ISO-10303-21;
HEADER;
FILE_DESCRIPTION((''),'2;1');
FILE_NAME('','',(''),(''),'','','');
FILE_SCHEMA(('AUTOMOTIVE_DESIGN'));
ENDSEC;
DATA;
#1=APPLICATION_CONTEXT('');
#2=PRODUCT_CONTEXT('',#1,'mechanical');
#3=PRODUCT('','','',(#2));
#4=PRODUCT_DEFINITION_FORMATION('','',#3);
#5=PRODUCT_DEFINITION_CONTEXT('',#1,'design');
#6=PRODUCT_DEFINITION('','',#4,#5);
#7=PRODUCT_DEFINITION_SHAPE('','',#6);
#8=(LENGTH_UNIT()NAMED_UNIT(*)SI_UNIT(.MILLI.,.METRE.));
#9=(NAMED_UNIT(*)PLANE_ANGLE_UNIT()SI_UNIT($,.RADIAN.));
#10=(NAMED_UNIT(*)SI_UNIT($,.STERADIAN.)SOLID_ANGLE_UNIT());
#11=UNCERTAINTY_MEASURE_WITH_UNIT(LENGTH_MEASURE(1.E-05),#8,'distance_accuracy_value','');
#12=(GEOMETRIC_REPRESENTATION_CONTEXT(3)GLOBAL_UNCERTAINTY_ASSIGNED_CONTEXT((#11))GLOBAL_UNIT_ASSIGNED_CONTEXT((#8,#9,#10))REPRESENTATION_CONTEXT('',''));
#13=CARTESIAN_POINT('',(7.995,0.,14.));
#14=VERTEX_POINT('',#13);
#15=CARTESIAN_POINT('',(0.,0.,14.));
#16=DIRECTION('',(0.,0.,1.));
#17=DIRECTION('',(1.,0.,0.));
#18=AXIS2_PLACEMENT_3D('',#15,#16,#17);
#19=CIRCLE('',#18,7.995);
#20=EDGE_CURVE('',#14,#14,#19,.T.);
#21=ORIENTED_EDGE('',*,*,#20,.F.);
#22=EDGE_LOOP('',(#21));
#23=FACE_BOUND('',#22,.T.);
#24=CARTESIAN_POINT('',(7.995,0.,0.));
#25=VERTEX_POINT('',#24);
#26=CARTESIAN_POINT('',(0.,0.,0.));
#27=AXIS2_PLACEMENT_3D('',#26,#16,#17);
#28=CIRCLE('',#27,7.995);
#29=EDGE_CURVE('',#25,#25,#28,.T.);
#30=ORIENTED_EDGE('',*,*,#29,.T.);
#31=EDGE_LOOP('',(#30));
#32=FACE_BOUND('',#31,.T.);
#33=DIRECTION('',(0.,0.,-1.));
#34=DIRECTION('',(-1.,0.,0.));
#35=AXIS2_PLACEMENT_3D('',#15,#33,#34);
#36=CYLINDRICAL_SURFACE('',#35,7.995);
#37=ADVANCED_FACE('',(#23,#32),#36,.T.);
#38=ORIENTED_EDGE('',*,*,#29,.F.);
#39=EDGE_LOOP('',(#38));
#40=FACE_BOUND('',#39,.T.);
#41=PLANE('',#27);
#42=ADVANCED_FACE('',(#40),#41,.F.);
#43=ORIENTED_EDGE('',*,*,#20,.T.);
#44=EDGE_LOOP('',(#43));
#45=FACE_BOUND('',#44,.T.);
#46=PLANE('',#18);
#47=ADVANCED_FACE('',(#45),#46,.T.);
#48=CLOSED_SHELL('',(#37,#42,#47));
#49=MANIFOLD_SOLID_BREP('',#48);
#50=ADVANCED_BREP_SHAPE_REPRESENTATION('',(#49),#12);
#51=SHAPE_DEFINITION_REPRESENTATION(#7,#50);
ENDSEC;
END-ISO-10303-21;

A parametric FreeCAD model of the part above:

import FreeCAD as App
import Part
import Sketcher

V = App.Vector
Q = App.Units.Quantity

doc = App.newDocument("Part")
params = doc.addObject("Spreadsheet::Sheet", "Params")
for row, (alias, value) in enumerate([
    ("sketch1_diameter", "15.99 mm"),
    ("pad1_length", "14 mm"),
], start=1):
    params.set(f"A{row}", alias)
    params.set(f"B{row}", "=" + value)
    params.setAlias(f"B{row}", alias)

body = doc.addObject("PartDesign::Body", "Body")

# Sketch on XY plane
sketch1 = body.newObject("Sketcher::SketchObject", "Sketch")
sketch1.AttachmentSupport = (doc.getObject("XY_Plane"), [""])
sketch1.MapMode = "FlatFace"
sketch1.addGeometry(Part.Circle(V(0, 0, 0), V(0, 0, 1), 7.995), False)
sketch1.addConstraint([
    Sketcher.Constraint("Coincident", 0, 3, -1, 1),
    Sketcher.Constraint("Diameter", 0, Q("15.99 mm")),
])
sketch1.setExpression("Constraints[1]", "Params.sketch1_diameter")
pad1 = body.newObject("PartDesign::Pad", "Pad")
pad1.Profile = sketch1
pad1.setExpression("Length", "Params.pad1_length")

doc.recompute()
